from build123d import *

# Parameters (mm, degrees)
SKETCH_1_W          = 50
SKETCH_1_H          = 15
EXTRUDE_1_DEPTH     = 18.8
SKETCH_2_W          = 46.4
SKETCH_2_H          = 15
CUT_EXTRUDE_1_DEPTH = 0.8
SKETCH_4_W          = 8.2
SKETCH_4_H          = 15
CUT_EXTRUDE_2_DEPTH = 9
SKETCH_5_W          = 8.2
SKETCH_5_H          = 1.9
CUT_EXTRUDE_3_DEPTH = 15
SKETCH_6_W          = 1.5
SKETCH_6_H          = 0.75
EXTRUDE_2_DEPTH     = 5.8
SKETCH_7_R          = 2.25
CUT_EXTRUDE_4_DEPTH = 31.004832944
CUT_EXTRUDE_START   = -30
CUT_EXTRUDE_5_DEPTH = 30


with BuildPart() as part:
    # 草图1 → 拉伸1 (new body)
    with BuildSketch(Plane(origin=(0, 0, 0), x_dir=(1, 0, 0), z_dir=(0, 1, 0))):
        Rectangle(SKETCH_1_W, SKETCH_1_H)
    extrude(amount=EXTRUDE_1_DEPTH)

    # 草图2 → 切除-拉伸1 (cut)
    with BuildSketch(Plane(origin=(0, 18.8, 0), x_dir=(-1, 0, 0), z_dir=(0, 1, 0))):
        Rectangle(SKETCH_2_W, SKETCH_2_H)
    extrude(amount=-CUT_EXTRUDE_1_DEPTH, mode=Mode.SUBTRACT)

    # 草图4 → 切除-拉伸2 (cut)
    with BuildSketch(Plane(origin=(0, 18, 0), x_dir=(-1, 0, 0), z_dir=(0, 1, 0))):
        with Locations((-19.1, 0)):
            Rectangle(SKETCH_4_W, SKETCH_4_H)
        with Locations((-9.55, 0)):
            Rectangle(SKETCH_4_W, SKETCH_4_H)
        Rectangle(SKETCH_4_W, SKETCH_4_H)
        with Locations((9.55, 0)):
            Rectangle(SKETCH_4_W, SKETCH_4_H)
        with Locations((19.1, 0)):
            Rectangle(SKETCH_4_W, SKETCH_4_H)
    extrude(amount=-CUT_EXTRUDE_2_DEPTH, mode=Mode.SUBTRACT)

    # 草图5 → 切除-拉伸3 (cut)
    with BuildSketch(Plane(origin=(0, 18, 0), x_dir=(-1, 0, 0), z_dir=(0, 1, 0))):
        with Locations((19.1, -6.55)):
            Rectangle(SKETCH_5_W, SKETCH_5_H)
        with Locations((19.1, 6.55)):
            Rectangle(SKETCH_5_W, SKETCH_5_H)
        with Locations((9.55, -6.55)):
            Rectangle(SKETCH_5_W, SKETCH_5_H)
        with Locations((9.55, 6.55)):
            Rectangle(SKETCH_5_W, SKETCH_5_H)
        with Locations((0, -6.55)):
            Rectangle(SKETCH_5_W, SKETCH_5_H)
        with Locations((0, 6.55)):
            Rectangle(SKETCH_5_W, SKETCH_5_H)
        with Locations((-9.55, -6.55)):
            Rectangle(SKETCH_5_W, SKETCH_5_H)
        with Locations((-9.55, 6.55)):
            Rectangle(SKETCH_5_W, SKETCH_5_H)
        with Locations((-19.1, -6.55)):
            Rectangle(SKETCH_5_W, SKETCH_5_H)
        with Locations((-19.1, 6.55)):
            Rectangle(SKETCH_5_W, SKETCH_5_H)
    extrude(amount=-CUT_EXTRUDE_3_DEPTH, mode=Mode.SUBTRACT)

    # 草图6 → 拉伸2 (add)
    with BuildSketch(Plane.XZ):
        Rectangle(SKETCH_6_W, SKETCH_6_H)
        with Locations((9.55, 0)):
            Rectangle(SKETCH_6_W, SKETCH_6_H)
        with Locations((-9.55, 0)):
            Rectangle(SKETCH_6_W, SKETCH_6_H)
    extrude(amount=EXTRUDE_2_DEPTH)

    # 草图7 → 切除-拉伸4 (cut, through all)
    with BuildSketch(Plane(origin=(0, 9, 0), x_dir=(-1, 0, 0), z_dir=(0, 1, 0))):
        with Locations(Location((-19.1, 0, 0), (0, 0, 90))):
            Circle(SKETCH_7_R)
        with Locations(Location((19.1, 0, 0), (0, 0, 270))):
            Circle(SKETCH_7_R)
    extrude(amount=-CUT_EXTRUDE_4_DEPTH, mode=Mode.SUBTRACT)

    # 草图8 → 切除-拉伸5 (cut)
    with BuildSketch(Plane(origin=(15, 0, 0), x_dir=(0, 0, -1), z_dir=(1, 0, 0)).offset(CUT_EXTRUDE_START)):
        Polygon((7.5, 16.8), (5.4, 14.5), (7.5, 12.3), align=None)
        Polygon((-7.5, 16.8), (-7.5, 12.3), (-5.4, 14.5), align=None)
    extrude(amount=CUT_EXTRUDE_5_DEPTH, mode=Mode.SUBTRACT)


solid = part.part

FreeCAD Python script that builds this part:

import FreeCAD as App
import Part
import Sketcher

doc = App.newDocument("Part")
body = doc.addObject("PartDesign::Body", "Body")

sketch1 = doc.addObject("Sketcher::SketchObject", "Sketch")
body.addObject(sketch1)
sketch1.AttachmentSupport = (doc.XZ_Plane, [""])
sketch1.MapMode = "FlatFace"
sketch1.addGeometry([
    Part.LineSegment(App.Vector(-25, -8, 0), App.Vector(-25, 8, 0)),
    Part.LineSegment(App.Vector(-25, 8, 0), App.Vector(25, 8, 0)),
    Part.LineSegment(App.Vector(25, 8, 0), App.Vector(25, -8, 0)),
    Part.LineSegment(App.Vector(25, -8, 0), App.Vector(-25, -8, 0)),
], False)
sketch1.addConstraint([
    Sketcher.Constraint("Coincident", 0, 2, 1, 1),
    Sketcher.Constraint("Coincident", 1, 2, 2, 1),
    Sketcher.Constraint("Coincident", 2, 2, 3, 1),
    Sketcher.Constraint("Coincident", 3, 2, 0, 1),
    Sketcher.Constraint("Vertical", 0),
    Sketcher.Constraint("Horizontal", 1),
    Sketcher.Constraint("Vertical", 2),
    Sketcher.Constraint("Horizontal", 3),
    Sketcher.Constraint("Symmetric", 0, 2, 2, 2, -1, 1),
    Sketcher.Constraint("DistanceX", 1, 1, 1, 2, 50.0),
    Sketcher.Constraint("DistanceY", 0, 1, 0, 2, 15.0),
])
pad1 = doc.addObject("PartDesign::Pad", "Pad")
body.addObject(pad1)
pad1.Profile = sketch1
pad1.Length = 18.8
pad1.Reversed = True

sketch2 = doc.addObject("Sketcher::SketchObject", "Sketch001")
body.addObject(sketch2)
sketch2.AttachmentSupport = (doc.XZ_Plane, [""])
sketch2.MapMode = "FlatFace"
sketch2.AttachmentOffset = App.Placement(App.Vector(0, 0, -18.8), App.Rotation())
sketch2.addGeometry([
    Part.LineSegment(App.Vector(23, 8, 0), App.Vector(23, -8, 0)),
    Part.LineSegment(App.Vector(23, -8, 0), App.Vector(-23, -8, 0)),
    Part.LineSegment(App.Vector(-23, -8, 0), App.Vector(-23, 8, 0)),
    Part.LineSegment(App.Vector(-23, 8, 0), App.Vector(23, 8, 0)),
], False)
sketch2.addConstraint([
    Sketcher.Constraint("Coincident", 0, 2, 1, 1),
    Sketcher.Constraint("Coincident", 1, 2, 2, 1),
    Sketcher.Constraint("Coincident", 2, 2, 3, 1),
    Sketcher.Constraint("Coincident", 3, 2, 0, 1),
    Sketcher.Constraint("Vertical", 0),
    Sketcher.Constraint("Horizontal", 1),
    Sketcher.Constraint("Vertical", 2),
    Sketcher.Constraint("Horizontal", 3),
    Sketcher.Constraint("Symmetric", 0, 2, 2, 2, -1, 1),
    Sketcher.Constraint("DistanceY", 0, 2, 0, 1, 15.0),
    Sketcher.Constraint("DistanceX", 1, 2, 1, 1, 46.4),
])
pocket1 = doc.addObject("PartDesign::Pocket", "Pocket")
body.addObject(pocket1)
pocket1.Profile = sketch2
pocket1.Length = 0.8
pocket1.Reversed = True

sketch3 = doc.addObject("Sketcher::SketchObject", "Sketch002")
body.addObject(sketch3)
sketch3.AttachmentSupport = (doc.XZ_Plane, [""])
sketch3.MapMode = "FlatFace"
sketch3.AttachmentOffset = App.Placement(App.Vector(0, 0, -18), App.Rotation())
sketch3.addGeometry([
    Part.LineSegment(App.Vector(23, 8, 0), App.Vector(23, -8, 0)),
    Part.LineSegment(App.Vector(23, -8, 0), App.Vector(15, -8, 0)),
    Part.LineSegment(App.Vector(15, -8, 0), App.Vector(15, 8, 0)),
    Part.LineSegment(App.Vector(15, 8, 0), App.Vector(23, 8, 0)),
    Part.LineSegment(App.Vector(14, 8, 0), App.Vector(14, -8, 0)),
    Part.LineSegment(App.Vector(14, -8, 0), App.Vector(5, -8, 0)),
    Part.LineSegment(App.Vector(5, -8, 0), App.Vector(5, 8, 0)),
    Part.LineSegment(App.Vector(5, 8, 0), App.Vector(14, 8, 0)),
    Part.LineSegment(App.Vector(4, 8, 0), App.Vector(4, -8, 0)),
    Part.LineSegment(App.Vector(4, -8, 0), App.Vector(-4, -8, 0)),
    Part.LineSegment(App.Vector(-4, -8, 0), App.Vector(-4, 8, 0)),
    Part.LineSegment(App.Vector(-4, 8, 0), App.Vector(4, 8, 0)),
    Part.LineSegment(App.Vector(-5, 8, 0), App.Vector(-5, -8, 0)),
    Part.LineSegment(App.Vector(-5, -8, 0), App.Vector(-14, -8, 0)),
    Part.LineSegment(App.Vector(-14, -8, 0), App.Vector(-14, 8, 0)),
    Part.LineSegment(App.Vector(-14, 8, 0), App.Vector(-5, 8, 0)),
    Part.LineSegment(App.Vector(-15, 8, 0), App.Vector(-15, -8, 0)),
    Part.LineSegment(App.Vector(-15, -8, 0), App.Vector(-23, -8, 0)),
    Part.LineSegment(App.Vector(-23, -8, 0), App.Vector(-23, 8, 0)),
    Part.LineSegment(App.Vector(-23, 8, 0), App.Vector(-15, 8, 0)),
], False)
sketch3.addConstraint([
    Sketcher.Constraint("Coincident", 0, 2, 1, 1),
    Sketcher.Constraint("Coincident", 1, 2, 2, 1),
    Sketcher.Constraint("Coincident", 2, 2, 3, 1),
    Sketcher.Constraint("Coincident", 3, 2, 0, 1),
    Sketcher.Constraint("Coincident", 4, 2, 5, 1),
    Sketcher.Constraint("Coincident", 5, 2, 6, 1),
    Sketcher.Constraint("Coincident", 6, 2, 7, 1),
    Sketcher.Constraint("Coincident", 7, 2, 4, 1),
    Sketcher.Constraint("Coincident", 8, 2, 9, 1),
    Sketcher.Constraint("Coincident", 9, 2, 10, 1),
    Sketcher.Constraint("Coincident", 10, 2, 11, 1),
    Sketcher.Constraint("Coincident", 11, 2, 8, 1),
    Sketcher.Constraint("Coincident", 12, 2, 13, 1),
    Sketcher.Constraint("Coincident", 13, 2, 14, 1),
    Sketcher.Constraint("Coincident", 14, 2, 15, 1),
    Sketcher.Constraint("Coincident", 15, 2, 12, 1),
    Sketcher.Constraint("Coincident", 16, 2, 17, 1),
    Sketcher.Constraint("Coincident", 17, 2, 18, 1),
    Sketcher.Constraint("Coincident", 18, 2, 19, 1),
    Sketcher.Constraint("Coincident", 19, 2, 16, 1),
    Sketcher.Constraint("Vertical", 0),
    Sketcher.Constraint("Horizontal", 1),
    Sketcher.Constraint("Vertical", 2),
    Sketcher.Constraint("Horizontal", 3),
    Sketcher.Constraint("Vertical", 4),
    Sketcher.Constraint("Horizontal", 5),
    Sketcher.Constraint("Vertical", 6),
    Sketcher.Constraint("Horizontal", 7),
    Sketcher.Constraint("Vertical", 8),
    Sketcher.Constraint("Horizontal", 9),
    Sketcher.Constraint("Vertical", 10),
    Sketcher.Constraint("Horizontal", 11),
    Sketcher.Constraint("Vertical", 12),
    Sketcher.Constraint("Horizontal", 13),
    Sketcher.Constraint("Vertical", 14),
    Sketcher.Constraint("Horizontal", 15),
    Sketcher.Constraint("Vertical", 16),
    Sketcher.Constraint("Horizontal", 17),
    Sketcher.Constraint("Vertical", 18),
    Sketcher.Constraint("Horizontal", 19),
    Sketcher.Constraint("Symmetric", 8, 2, 10, 2, -1, 1),
    Sketcher.Constraint("Symmetric", 6, 2, 12, 2, -1, 1),
    Sketcher.Constraint("Symmetric", 4, 2, 14, 2, -1, 1),
    Sketcher.Constraint("Symmetric", 2, 2, 16, 2, -1, 1),
    Sketcher.Constraint("Symmetric", 0, 2, 18, 2, -1, 1),
    Sketcher.Constraint("Horizontal", 1, 2, 4, 2),
    Sketcher.Constraint("Horizontal", 3, 2, 6, 2),
    Sketcher.Constraint("Horizontal", 5, 2, 8, 2),
    Sketcher.Constraint("Horizontal", 7, 2, 10, 2),
    Sketcher.Constraint("Equal", 3, 5),
    Sketcher.Constraint("Equal", 7, 9),
    Sketcher.Constraint("DistanceY", 0, 2, 0, 1, 15.0),
    Sketcher.Constraint("DistanceX", 1, 2, 1, 1, 8.2),
    Sketcher.Constraint("DistanceX", -1, 1, 1, 2, 15.0),
    Sketcher.Constraint("DistanceX", 12, 2, 5, 2, 10.9),
])
pocket2 = doc.addObject("PartDesign::Pocket", "Pocket001")
body.addObject(pocket2)
pocket2.Profile = sketch3
pocket2.Length = 9
pocket2.Reversed = True

sketch4 = doc.addObject("Sketcher::SketchObject", "Sketch003")
body.addObject(sketch4)
sketch4.AttachmentSupport = (doc.XZ_Plane, [""])
sketch4.MapMode = "FlatFace"
sketch4.AttachmentOffset = App.Placement(App.Vector(0, 0, -18), App.Rotation())
sketch4.addGeometry([
    Part.LineSegment(App.Vector(-15, -5.6, 0), App.Vector(-15, -7.5, 0)),
    Part.LineSegment(App.Vector(-15, -7.5, 0), App.Vector(-23.2, -7.5, 0)),
    Part.LineSegment(App.Vector(-23.2, -7.5, 0), App.Vector(-23.2, -5.6, 0)),
    Part.LineSegment(App.Vector(-23.2, -5.6, 0), App.Vector(-15, -5.6, 0)),
    Part.LineSegment(App.Vector(-15, 7.5, 0), App.Vector(-15, 5.6, 0)),
    Part.LineSegment(App.Vector(-15, 5.6, 0), App.Vector(-23.2, 5.6, 0)),
    Part.LineSegment(App.Vector(-23.2, 5.6, 0), App.Vector(-23.2, 7.5, 0)),
    Part.LineSegment(App.Vector(-23.2, 7.5, 0), App.Vector(-15, 7.5, 0)),
    Part.LineSegment(App.Vector(-5.5, -5.6, 0), App.Vector(-5.5, -7.5, 0)),
    Part.LineSegment(App.Vector(-5.5, -7.5, 0), App.Vector(-13.7, -7.5, 0)),
    Part.LineSegment(App.Vector(-13.7, -7.5, 0), App.Vector(-13.7, -5.6, 0)),
    Part.LineSegment(App.Vector(-13.7, -5.6, 0), App.Vector(-5.5, -5.6, 0)),
    Part.LineSegment(App.Vector(-5.5, 7.5, 0), App.Vector(-5.5, 5.6, 0)),
    Part.LineSegment(App.Vector(-5.5, 5.6, 0), App.Vector(-13.7, 5.6, 0)),
    Part.LineSegment(App.Vector(-13.7, 5.6, 0), App.Vector(-13.7, 7.5, 0)),
    Part.LineSegment(App.Vector(-13.7, 7.5, 0), App.Vector(-5.5, 7.5, 0)),
    Part.LineSegment(App.Vector(4.1, -5.6, 0), App.Vector(4.1, -7.5, 0)),
    Part.LineSegment(App.Vector(4.1, -7.5, 0), App.Vector(-4.1, -7.5, 0)),
    Part.LineSegment(App.Vector(-4.1, -7.5, 0), App.Vector(-4.1, -5.6, 0)),
    Part.LineSegment(App.Vector(-4.1, -5.6, 0), App.Vector(4.1, -5.6, 0)),
    Part.LineSegment(App.Vector(4.1, 7.5, 0), App.Vector(4.1, 5.6, 0)),
    Part.LineSegment(App.Vector(4.1, 5.6, 0), App.Vector(-4.1, 5.6, 0)),
    Part.LineSegment(App.Vector(-4.1, 5.6, 0), App.Vector(-4.1, 7.5, 0)),
    Part.LineSegment(App.Vector(-4.1, 7.5, 0), App.Vector(4.1, 7.5, 0)),
    Part.LineSegment(App.Vector(13.7, -5.6, 0), App.Vector(13.7, -7.5, 0)),
    Part.LineSegment(App.Vector(13.7, -7.5, 0), App.Vector(5.5, -7.5, 0)),
    Part.LineSegment(App.Vector(5.5, -7.5, 0), App.Vector(5.5, -5.6, 0)),
    Part.LineSegment(App.Vector(5.5, -5.6, 0), App.Vector(13.7, -5.6, 0)),
    Part.LineSegment(App.Vector(13.7, 7.5, 0), App.Vector(13.7, 5.6, 0)),
    Part.LineSegment(App.Vector(13.7, 5.6, 0), App.Vector(5.5, 5.6, 0)),
    Part.LineSegment(App.Vector(5.5, 5.6, 0), App.Vector(5.5, 7.5, 0)),
    Part.LineSegment(App.Vector(5.5, 7.5, 0), App.Vector(13.7, 7.5, 0)),
    Part.LineSegment(App.Vector(23.2, -5.6, 0), App.Vector(23.2, -7.5, 0)),
    Part.LineSegment(App.Vector(23.2, -7.5, 0), App.Vector(15, -7.5, 0)),
    Part.LineSegment(App.Vector(15, -7.5, 0), App.Vector(15, -5.6, 0)),
    Part.LineSegment(App.Vector(15, -5.6, 0), App.Vector(23.2, -5.6, 0)),
    Part.LineSegment(App.Vector(23.2, 7.5, 0), App.Vector(23.2, 5.6, 0)),
    Part.LineSegment(App.Vector(23.2, 5.6, 0), App.Vector(15, 5.6, 0)),
    Part.LineSegment(App.Vector(15, 5.6, 0), App.Vector(15, 7.5, 0)),
    Part.LineSegment(App.Vector(15, 7.5, 0), App.Vector(23.2, 7.5, 0)),
], False)
sketch4.addConstraint([
    Sketcher.Constraint("Coincident", 0, 2, 1, 1),
    Sketcher.Constraint("Coincident", 1, 2, 2, 1),
    Sketcher.Constraint("Coincident", 2, 2, 3, 1),
    Sketcher.Constraint("Coincident", 3, 2, 0, 1),
    Sketcher.Constraint("Coincident", 4, 2, 5, 1),
    Sketcher.Constraint("Coincident", 5, 2, 6, 1),
    Sketcher.Constraint("Coincident", 6, 2, 7, 1),
    Sketcher.Constraint("Coincident", 7, 2, 4, 1),
    Sketcher.Constraint("Coincident", 8, 2, 9, 1),
    Sketcher.Constraint("Coincident", 9, 2, 10, 1),
    Sketcher.Constraint("Coincident", 10, 2, 11, 1),
    Sketcher.Constraint("Coincident", 11, 2, 8, 1),
    Sketcher.Constraint("Coincident", 12, 2, 13, 1),
    Sketcher.Constraint("Coincident", 13, 2, 14, 1),
    Sketcher.Constraint("Coincident", 14, 2, 15, 1),
    Sketcher.Constraint("Coincident", 15, 2, 12, 1),
    Sketcher.Constraint("Coincident", 16, 2, 17, 1),
    Sketcher.Constraint("Coincident", 17, 2, 18, 1),
    Sketcher.Constraint("Coincident", 18, 2, 19, 1),
    Sketcher.Constraint("Coincident", 19, 2, 16, 1),
    Sketcher.Constraint("Coincident", 20, 2, 21, 1),
    Sketcher.Constraint("Coincident", 21, 2, 22, 1),
    Sketcher.Constraint("Coincident", 22, 2, 23, 1),
    Sketcher.Constraint("Coincident", 23, 2, 20, 1),
    Sketcher.Constraint("Coincident", 24, 2, 25, 1),
    Sketcher.Constraint("Coincident", 25, 2, 26, 1),
    Sketcher.Constraint("Coincident", 26, 2, 27, 1),
    Sketcher.Constraint("Coincident", 27, 2, 24, 1),
    Sketcher.Constraint("Coincident", 28, 2, 29, 1),
    Sketcher.Constraint("Coincident", 29, 2, 30, 1),
    Sketcher.Constraint("Coincident", 30, 2, 31, 1),
    Sketcher.Constraint("Coincident", 31, 2, 28, 1),
    Sketcher.Constraint("Coincident", 32, 2, 33, 1),
    Sketcher.Constraint("Coincident", 33, 2, 34, 1),
    Sketcher.Constraint("Coincident", 34, 2, 35, 1),
    Sketcher.Constraint("Coincident", 35, 2, 32, 1),
    Sketcher.Constraint("Coincident", 36, 2, 37, 1),
    Sketcher.Constraint("Coincident", 37, 2, 38, 1),
    Sketcher.Constraint("Coincident", 38, 2, 39, 1),
    Sketcher.Constraint("Coincident", 39, 2, 36, 1),
    Sketcher.Constraint("Vertical", 0),
    Sketcher.Constraint("Horizontal", 1),
    Sketcher.Constraint("Vertical", 2),
    Sketcher.Constraint("Horizontal", 3),
    Sketcher.Constraint("Vertical", 4),
    Sketcher.Constraint("Horizontal", 5),
    Sketcher.Constraint("Vertical", 6),
    Sketcher.Constraint("Horizontal", 7),
    Sketcher.Constraint("Vertical", 8),
    Sketcher.Constraint("Horizontal", 9),
    Sketcher.Constraint("Vertical", 10),
    Sketcher.Constraint("Horizontal", 11),
    Sketcher.Constraint("Vertical", 12),
    Sketcher.Constraint("Horizontal", 13),
    Sketcher.Constraint("Vertical", 14),
    Sketcher.Constraint("Horizontal", 15),
    Sketcher.Constraint("Vertical", 16),
    Sketcher.Constraint("Horizontal", 17),
    Sketcher.Constraint("Vertical", 18),
    Sketcher.Constraint("Horizontal", 19),
    Sketcher.Constraint("Vertical", 20),
    Sketcher.Constraint("Horizontal", 21),
    Sketcher.Constraint("Vertical", 22),
    Sketcher.Constraint("Horizontal", 23),
    Sketcher.Constraint("Vertical", 24),
    Sketcher.Constraint("Horizontal", 25),
    Sketcher.Constraint("Vertical", 26),
    Sketcher.Constraint("Horizontal", 27),
    Sketcher.Constraint("Vertical", 28),
    Sketcher.Constraint("Horizontal", 29),
    Sketcher.Constraint("Vertical", 30),
    Sketcher.Constraint("Horizontal", 31),
    Sketcher.Constraint("Vertical", 32),
    Sketcher.Constraint("Horizontal", 33),
    Sketcher.Constraint("Vertical", 34),
    Sketcher.Constraint("Horizontal", 35),
    Sketcher.Constraint("Vertical", 36),
    Sketcher.Constraint("Horizontal", 37),
    Sketcher.Constraint("Vertical", 38),
    Sketcher.Constraint("Horizontal", 39),
    Sketcher.Constraint("Symmetric", 18, 2, 20, 2, -1, 1),
    Sketcher.Constraint("Symmetric", 16, 2, 22, 2, -1, 1),
    Sketcher.Constraint("Symmetric", 14, 2, 24, 2, -1, 1),
    Sketcher.Constraint("Symmetric", 12, 2, 26, 2, -1, 1),
    Sketcher.Constraint("Symmetric", 10, 2, 28, 2, -1, 1),
    Sketcher.Constraint("Symmetric", 8, 2, 30, 2, -1, 1),
    Sketcher.Constraint("Symmetric", 6, 2, 32, 2, -1, 1),
    Sketcher.Constraint("Symmetric", 4, 2, 34, 2, -1, 1),
    Sketcher.Constraint("Symmetric", 2, 2, 36, 2, -1, 1),
    Sketcher.Constraint("Symmetric", 0, 2, 38, 2, -1, 1),
    Sketcher.Constraint("Symmetric", 9, 2, 24, 2, -2),
    Sketcher.Constraint("Symmetric", 11, 2, 26, 2, -2),
    Sketcher.Constraint("Symmetric", 1, 2, 32, 2, -2),
    Sketcher.Constraint("Symmetric", 3, 2, 34, 2, -2),
    Sketcher.Constraint("Horizontal", 1, 2, 8, 2),
    Sketcher.Constraint("Horizontal", 3, 2, 10, 2),
    Sketcher.Constraint("Horizontal", 9, 2, 16, 2),
    Sketcher.Constraint("Horizontal", 11, 2, 18, 2),
    Sketcher.Constraint("Vertical", 19, 2, 20, 2),
    Sketcher.Constraint("Equal", 7, 9),
    Sketcher.Constraint("Equal", 15, 17),
    Sketcher.Constraint("DistanceX", 1, 2, 1, 1, 8.2),
    Sketcher.Constraint("DistanceY", 0, 2, 0, 1, 1.9),
    Sketcher.Constraint("DistanceX", 0, 2, -1, 1, 15.0),
    Sketcher.Constraint("DistanceY", 1, 2, 6, 2, 15.0),
    Sketcher.Constraint("DistanceX", 8, 2, -1, 1, 5.45),
])
pocket3 = doc.addObject("PartDesign::Pocket", "Pocket002")
body.addObject(pocket3)
pocket3.Profile = sketch4
pocket3.Length = 15
pocket3.Reversed = True

sketch5 = doc.addObject("Sketcher::SketchObject", "Sketch004")
body.addObject(sketch5)
sketch5.AttachmentSupport = (doc.XZ_Plane, [""])
sketch5.MapMode = "FlatFace"
sketch5.addGeometry([
    Part.LineSegment(App.Vector(-0.8, 0.4, 0), App.Vector(-0.8, -0.4, 0)),
    Part.LineSegment(App.Vector(-0.8, -0.4, 0), App.Vector(0.8, -0.4, 0)),
    Part.LineSegment(App.Vector(0.8, -0.4, 0), App.Vector(0.8, 0.4, 0)),
    Part.LineSegment(App.Vector(0.8, 0.4, 0), App.Vector(-0.8, 0.4, 0)),
    Part.LineSegment(App.Vector(8.8, 0.4, 0), App.Vector(8.8, -0.4, 0)),
    Part.LineSegment(App.Vector(8.8, -0.4, 0), App.Vector(10.3, -0.4, 0)),
    Part.LineSegment(App.Vector(10.3, -0.4, 0), App.Vector(10.3, 0.4, 0)),
    Part.LineSegment(App.Vector(10.3, 0.4, 0), App.Vector(8.8, 0.4, 0)),
    Part.LineSegment(App.Vector(-10.3, 0.4, 0), App.Vector(-10.3, -0.4, 0)),
    Part.LineSegment(App.Vector(-10.3, -0.4, 0), App.Vector(-8.8, -0.4, 0)),
    Part.LineSegment(App.Vector(-8.8, -0.4, 0), App.Vector(-8.8, 0.4, 0)),
    Part.LineSegment(App.Vector(-8.8, 0.4, 0), App.Vector(-10.3, 0.4, 0)),
], False)
sketch5.addConstraint([
    Sketcher.Constraint("Coincident", 0, 2, 1, 1),
    Sketcher.Constraint("Coincident", 1, 2, 2, 1),
    Sketcher.Constraint("Coincident", 2, 2, 3, 1),
    Sketcher.Constraint("Coincident", 3, 2, 0, 1),
    Sketcher.Constraint("Coincident", 4, 2, 5, 1),
    Sketcher.Constraint("Coincident", 5, 2, 6, 1),
    Sketcher.Constraint("Coincident", 6, 2, 7, 1),
    Sketcher.Constraint("Coincident", 7, 2, 4, 1),
    Sketcher.Constraint("Coincident", 8, 2, 9, 1),
    Sketcher.Constraint("Coincident", 9, 2, 10, 1),
    Sketcher.Constraint("Coincident", 10, 2, 11, 1),
    Sketcher.Constraint("Coincident", 11, 2, 8, 1),
    Sketcher.Constraint("Vertical", 0),
    Sketcher.Constraint("Horizontal", 1),
    Sketcher.Constraint("Vertical", 2),
    Sketcher.Constraint("Horizontal", 3),
    Sketcher.Constraint("Vertical", 4),
    Sketcher.Constraint("Horizontal", 5),
    Sketcher.Constraint("Vertical", 6),
    Sketcher.Constraint("Horizontal", 7),
    Sketcher.Constraint("Vertical", 8),
    Sketcher.Constraint("Horizontal", 9),
    Sketcher.Constraint("Vertical", 10),
    Sketcher.Constraint("Horizontal", 11),
    Sketcher.Constraint("Symmetric", 0, 2, 2, 2, -1, 1),
    Sketcher.Constraint("Symmetric", 6, 2, 8, 2, -1, 1),
    Sketcher.Constraint("Symmetric", 4, 2, 10, 2, -1, 1),
    Sketcher.Constraint("Horizontal", 1, 2, 4, 2),
    Sketcher.Constraint("Horizontal", 3, 2, 6, 2),
    Sketcher.Constraint("Equal", 3, 5),
    Sketcher.Constraint("DistanceX", 1, 1, 1, 2, 1.5),
    Sketcher.Constraint("DistanceY", 0, 2, 0, 1, 0.75),
    Sketcher.Constraint("DistanceX", -1, 1, 4, 2, 8.8),
])
pad2 = doc.addObject("PartDesign::Pad", "Pad001")
body.addObject(pad2)
pad2.Profile = sketch5
pad2.Length = 5.8

sketch6 = doc.addObject("Sketcher::SketchObject", "Sketch005")
body.addObject(sketch6)
sketch6.AttachmentSupport = (doc.XZ_Plane, [""])
sketch6.MapMode = "FlatFace"
sketch6.AttachmentOffset = App.Placement(App.Vector(0, 0, -9), App.Rotation())
sketch6.addGeometry([
    Part.Circle(App.Vector(19.1, 0, 0), App.Vector(0, 0, 1), 2.2),
    Part.Circle(App.Vector(-19.1, 0, 0), App.Vector(0, 0, 1), 2.2),
], False)
sketch6.addConstraint([
    Sketcher.Constraint("Equal", 0, 1),
    Sketcher.Constraint("Symmetric", 0, 3, 1, 3, -1, 1),
    Sketcher.Constraint("PointOnObject", 0, 3, -1),
    Sketcher.Constraint("Diameter", 0, 4.5),
    Sketcher.Constraint("DistanceX", -1, 1, 0, 3, 19.1),
])
pocket4 = doc.addObject("PartDesign::Pocket", "Pocket003")
body.addObject(pocket4)
pocket4.Profile = sketch6
pocket4.Type = "ThroughAll"
pocket4.Reversed = True

sketch7 = doc.addObject("Sketcher::SketchObject", "Sketch006")
body.addObject(sketch7)
sketch7.AttachmentSupport = (doc.YZ_Plane, [""])
sketch7.MapMode = "FlatFace"
sketch7.AttachmentOffset = App.Placement(App.Vector(0, 0, -15), App.Rotation())
sketch7.addGeometry([
    Part.LineSegment(App.Vector(16.8, -7.5, 0), App.Vector(14.5, -5.4, 0)),
    Part.LineSegment(App.Vector(14.5, -5.4, 0), App.Vector(12.3, -7.5, 0)),
    Part.LineSegment(App.Vector(12.3, -7.5, 0), App.Vector(16.8, -7.5, 0)),
    Part.LineSegment(App.Vector(16.8, 7.5, 0), App.Vector(12.3, 7.5, 0)),
    Part.LineSegment(App.Vector(12.3, 7.5, 0), App.Vector(14.5, 5.4, 0)),
    Part.LineSegment(App.Vector(14.5, 5.4, 0), App.Vector(16.8, 7.5, 0)),
], False)
sketch7.addConstraint([
    Sketcher.Constraint("Coincident", 0, 2, 1, 1),
    Sketcher.Constraint("Coincident", 1, 2, 2, 1),
    Sketcher.Constraint("Coincident", 2, 2, 0, 1),
    Sketcher.Constraint("Coincident", 3, 2, 4, 1),
    Sketcher.Constraint("Coincident", 4, 2, 5, 1),
    Sketcher.Constraint("Coincident", 5, 2, 3, 1),
    Sketcher.Constraint("Horizontal", 2),
    Sketcher.Constraint("Horizontal", 3),
    Sketcher.Constraint("Symmetric", 1, 2, 3, 2, -1),
    Sketcher.Constraint("Symmetric", 0, 2, 4, 2, -1),
    Sketcher.Constraint("Vertical", 2, 2, 5, 2),
    Sketcher.Constraint("DistanceX", 2, 1, 2, 2, 4.5),
    Sketcher.Constraint("DistanceY", 1, 2, 3, 2, 15.0),
    Sketcher.Constraint("DistanceX", -1, 1, 0, 2, 14.5),
    Sketcher.Constraint("DistanceY", 0, 2, -1, 1, 5.4),
    Sketcher.Constraint("DistanceX", -1, 1, 1, 2, 12.3),
])
pocket5 = doc.addObject("PartDesign::Pocket", "Pocket004")
body.addObject(pocket5)
pocket5.Profile = sketch7
pocket5.Length = 30
pocket5.Reversed = True

doc.recompute()
